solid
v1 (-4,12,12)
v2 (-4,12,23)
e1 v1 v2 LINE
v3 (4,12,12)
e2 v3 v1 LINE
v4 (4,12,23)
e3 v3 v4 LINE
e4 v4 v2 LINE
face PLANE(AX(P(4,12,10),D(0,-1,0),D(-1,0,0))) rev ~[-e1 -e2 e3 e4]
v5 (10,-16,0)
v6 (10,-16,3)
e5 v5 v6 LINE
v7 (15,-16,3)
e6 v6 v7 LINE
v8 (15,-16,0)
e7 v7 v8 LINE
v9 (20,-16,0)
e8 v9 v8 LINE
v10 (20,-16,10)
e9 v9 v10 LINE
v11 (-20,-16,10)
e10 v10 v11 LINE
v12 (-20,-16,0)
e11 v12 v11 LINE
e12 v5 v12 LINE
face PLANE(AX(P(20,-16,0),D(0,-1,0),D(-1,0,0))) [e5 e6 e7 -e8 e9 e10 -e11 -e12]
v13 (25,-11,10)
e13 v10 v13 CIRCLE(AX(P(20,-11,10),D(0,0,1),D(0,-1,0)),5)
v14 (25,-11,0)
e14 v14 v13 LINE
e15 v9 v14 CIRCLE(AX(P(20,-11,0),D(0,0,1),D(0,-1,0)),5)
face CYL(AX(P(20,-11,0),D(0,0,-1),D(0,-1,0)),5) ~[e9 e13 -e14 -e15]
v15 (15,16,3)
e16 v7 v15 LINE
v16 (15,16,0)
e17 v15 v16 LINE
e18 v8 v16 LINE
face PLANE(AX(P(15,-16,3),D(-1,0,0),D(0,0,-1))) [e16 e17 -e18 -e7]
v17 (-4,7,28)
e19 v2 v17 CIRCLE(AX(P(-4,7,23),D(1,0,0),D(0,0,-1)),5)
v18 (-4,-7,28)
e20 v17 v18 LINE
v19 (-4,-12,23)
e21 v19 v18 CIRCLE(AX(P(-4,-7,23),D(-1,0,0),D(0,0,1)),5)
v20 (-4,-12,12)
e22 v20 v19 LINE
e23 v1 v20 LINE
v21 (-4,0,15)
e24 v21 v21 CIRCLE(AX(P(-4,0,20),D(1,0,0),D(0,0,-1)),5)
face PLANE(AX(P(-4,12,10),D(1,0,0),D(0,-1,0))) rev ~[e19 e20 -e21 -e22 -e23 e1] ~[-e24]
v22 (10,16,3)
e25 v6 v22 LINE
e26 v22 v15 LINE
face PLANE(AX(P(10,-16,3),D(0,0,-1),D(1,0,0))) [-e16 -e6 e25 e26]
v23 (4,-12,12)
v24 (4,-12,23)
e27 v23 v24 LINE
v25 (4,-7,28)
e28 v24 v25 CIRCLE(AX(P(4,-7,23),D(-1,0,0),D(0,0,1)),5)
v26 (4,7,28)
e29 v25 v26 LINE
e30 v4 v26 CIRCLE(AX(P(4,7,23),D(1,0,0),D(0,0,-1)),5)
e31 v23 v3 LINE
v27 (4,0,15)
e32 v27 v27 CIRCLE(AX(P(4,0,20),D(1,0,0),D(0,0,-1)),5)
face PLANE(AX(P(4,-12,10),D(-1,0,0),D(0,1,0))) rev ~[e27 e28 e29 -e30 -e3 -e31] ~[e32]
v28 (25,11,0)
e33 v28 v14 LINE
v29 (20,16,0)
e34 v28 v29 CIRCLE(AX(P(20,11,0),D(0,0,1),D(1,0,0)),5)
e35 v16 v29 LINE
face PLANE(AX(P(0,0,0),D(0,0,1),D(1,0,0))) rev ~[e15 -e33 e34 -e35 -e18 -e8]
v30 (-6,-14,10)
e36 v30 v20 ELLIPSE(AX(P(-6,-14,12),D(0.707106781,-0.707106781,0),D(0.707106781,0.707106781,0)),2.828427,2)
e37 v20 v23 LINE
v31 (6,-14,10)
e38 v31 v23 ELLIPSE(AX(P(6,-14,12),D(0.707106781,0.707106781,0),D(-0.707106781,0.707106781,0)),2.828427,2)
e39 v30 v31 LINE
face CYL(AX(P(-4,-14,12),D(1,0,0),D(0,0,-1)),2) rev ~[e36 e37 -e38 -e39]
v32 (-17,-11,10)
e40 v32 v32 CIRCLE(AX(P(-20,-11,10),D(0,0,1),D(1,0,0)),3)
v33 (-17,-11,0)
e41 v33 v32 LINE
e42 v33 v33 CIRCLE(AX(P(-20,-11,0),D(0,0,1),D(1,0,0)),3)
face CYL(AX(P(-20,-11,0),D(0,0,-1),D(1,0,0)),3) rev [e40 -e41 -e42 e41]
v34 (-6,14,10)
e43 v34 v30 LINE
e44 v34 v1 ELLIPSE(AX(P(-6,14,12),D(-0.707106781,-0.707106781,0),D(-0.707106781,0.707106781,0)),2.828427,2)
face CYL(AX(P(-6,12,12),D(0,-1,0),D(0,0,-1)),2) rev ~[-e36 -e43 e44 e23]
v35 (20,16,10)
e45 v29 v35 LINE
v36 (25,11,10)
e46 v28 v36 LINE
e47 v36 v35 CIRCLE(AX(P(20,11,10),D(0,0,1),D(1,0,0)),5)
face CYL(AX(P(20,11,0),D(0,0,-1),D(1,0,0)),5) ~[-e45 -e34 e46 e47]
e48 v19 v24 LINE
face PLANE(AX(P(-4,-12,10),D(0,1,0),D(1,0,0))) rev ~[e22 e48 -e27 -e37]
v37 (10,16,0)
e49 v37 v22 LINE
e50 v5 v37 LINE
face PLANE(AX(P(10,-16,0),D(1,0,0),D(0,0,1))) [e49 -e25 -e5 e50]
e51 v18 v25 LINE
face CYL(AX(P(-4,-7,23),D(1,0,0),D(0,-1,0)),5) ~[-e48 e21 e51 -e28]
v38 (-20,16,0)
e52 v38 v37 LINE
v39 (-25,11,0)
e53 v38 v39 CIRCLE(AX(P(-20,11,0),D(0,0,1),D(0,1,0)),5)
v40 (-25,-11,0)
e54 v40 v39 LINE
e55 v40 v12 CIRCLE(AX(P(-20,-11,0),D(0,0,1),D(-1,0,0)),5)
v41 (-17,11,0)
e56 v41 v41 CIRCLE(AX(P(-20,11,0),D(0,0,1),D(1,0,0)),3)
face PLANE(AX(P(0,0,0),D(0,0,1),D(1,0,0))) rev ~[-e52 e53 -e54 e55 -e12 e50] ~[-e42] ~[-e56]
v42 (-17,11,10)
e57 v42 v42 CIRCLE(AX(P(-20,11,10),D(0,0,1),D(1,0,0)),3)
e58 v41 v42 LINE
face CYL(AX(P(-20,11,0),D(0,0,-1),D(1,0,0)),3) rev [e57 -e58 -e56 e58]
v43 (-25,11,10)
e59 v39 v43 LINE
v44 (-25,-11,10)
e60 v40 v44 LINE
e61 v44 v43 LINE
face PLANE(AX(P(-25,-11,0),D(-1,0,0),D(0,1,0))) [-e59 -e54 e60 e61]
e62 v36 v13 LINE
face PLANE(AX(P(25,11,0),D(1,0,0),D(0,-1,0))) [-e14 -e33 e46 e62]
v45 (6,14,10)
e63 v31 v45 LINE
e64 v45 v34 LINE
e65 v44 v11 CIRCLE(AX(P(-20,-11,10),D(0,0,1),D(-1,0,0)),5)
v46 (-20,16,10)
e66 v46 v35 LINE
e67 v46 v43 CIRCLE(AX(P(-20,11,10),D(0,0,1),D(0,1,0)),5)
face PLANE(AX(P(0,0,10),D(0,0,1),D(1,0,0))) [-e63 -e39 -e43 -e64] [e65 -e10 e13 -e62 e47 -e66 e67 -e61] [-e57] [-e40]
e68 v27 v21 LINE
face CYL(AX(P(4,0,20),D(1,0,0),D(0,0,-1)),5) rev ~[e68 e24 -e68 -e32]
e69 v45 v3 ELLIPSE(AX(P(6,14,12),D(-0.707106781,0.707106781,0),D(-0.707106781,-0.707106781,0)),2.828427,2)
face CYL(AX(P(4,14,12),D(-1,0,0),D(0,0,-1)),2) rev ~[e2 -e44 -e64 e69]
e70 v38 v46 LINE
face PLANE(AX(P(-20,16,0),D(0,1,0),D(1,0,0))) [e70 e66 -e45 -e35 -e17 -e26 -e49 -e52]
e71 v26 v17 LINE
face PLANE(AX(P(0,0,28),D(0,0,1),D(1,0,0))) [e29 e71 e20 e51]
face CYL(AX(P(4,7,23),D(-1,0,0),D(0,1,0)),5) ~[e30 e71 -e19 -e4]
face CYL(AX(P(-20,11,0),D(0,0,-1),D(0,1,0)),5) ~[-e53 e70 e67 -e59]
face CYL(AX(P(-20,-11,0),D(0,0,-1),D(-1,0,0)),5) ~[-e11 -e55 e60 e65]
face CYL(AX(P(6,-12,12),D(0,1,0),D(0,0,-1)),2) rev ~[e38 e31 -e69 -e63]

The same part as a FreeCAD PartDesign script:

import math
import FreeCAD as App
import Part
import Sketcher
from FreeCAD import Vector
Q = App.Units.Quantity


def edges_at(feature, points):
    """Names of the edges that pass closest to the given points."""
    edges = feature.Shape.Edges
    near = lambda p: min(range(len(edges)), key=lambda i: edges[i].distToShape(Part.Vertex(*p))[0])
    return sorted({f"Edge{near(p) + 1}" for p in points})


def add_polygon(sketch, points):
    """Adds a closed chain of lines whose ends are joined by coincident constraints."""
    first, n = sketch.GeometryCount, len(points)
    for a, b in zip(points, points[1:] + points[:1]):
        sketch.addGeometry(Part.LineSegment(App.Vector(*a, 0), App.Vector(*b, 0)), False)
    for i in range(n):
        sketch.addConstraint(Sketcher.Constraint("Coincident", first + i, 2, first + (i + 1) % n, 1))

doc = App.newDocument("Part")
body = doc.addObject("PartDesign::Body", "Body")

# Sketch on XY plane
sketch1 = body.newObject("Sketcher::SketchObject", "Sketch")
sketch1.AttachmentSupport = (doc.getObject("XY_Plane"), [""])
sketch1.MapMode = "FlatFace"
sketch1.addGeometry([
    Part.LineSegment(Vector(20, 16, 0), Vector(-20, 16, 0)),  # 0
    Part.ArcOfCircle(Part.Circle(Vector(-20, 11, 0), Vector(0, 0, 1), 5), math.radians(90), math.radians(180)),  # 1
    Part.LineSegment(Vector(-25, 11, 0), Vector(-25, -11, 0)),  # 2
    Part.ArcOfCircle(Part.Circle(Vector(-20, -11, 0), Vector(0, 0, 1), 5), math.radians(180), math.radians(270)),  # 3
    Part.LineSegment(Vector(-20, -16, 0), Vector(20, -16, 0)),  # 4
    Part.ArcOfCircle(Part.Circle(Vector(20, -11, 0), Vector(0, 0, 1), 5), math.radians(-90), math.radians(0)),  # 5
    Part.LineSegment(Vector(25, -11, 0), Vector(25, 11, 0)),  # 6
    Part.ArcOfCircle(Part.Circle(Vector(20, 11, 0), Vector(0, 0, 1), 5), math.radians(0), math.radians(90)),  # 7
    Part.Circle(Vector(-20, -11, 0), Vector(0, 0, 1), 3),  # 8
    Part.Circle(Vector(-20, 11, 0), Vector(0, 0, 1), 3),  # 9
], False)
sketch1.addConstraint([
    Sketcher.Constraint("Tangent", 0, 2, 1, 1),
    Sketcher.Constraint("Tangent", 1, 2, 2, 1),
    Sketcher.Constraint("Tangent", 2, 2, 3, 1),
    Sketcher.Constraint("Tangent", 3, 2, 4, 1),
    Sketcher.Constraint("Tangent", 4, 2, 5, 1),
    Sketcher.Constraint("Tangent", 5, 2, 6, 1),
    Sketcher.Constraint("Tangent", 6, 2, 7, 1),
    Sketcher.Constraint("Tangent", 7, 2, 0, 1),
    Sketcher.Constraint("Horizontal", 0),
    Sketcher.Constraint("Vertical", 2),
    Sketcher.Constraint("Horizontal", 4),
    Sketcher.Constraint("Vertical", 6),
    Sketcher.Constraint("Coincident", 8, 3, 3, 3),
    Sketcher.Constraint("Coincident", 9, 3, 1, 3),
    Sketcher.Constraint("Equal", 1, 3),
    Sketcher.Constraint("Equal", 3, 5),
    Sketcher.Constraint("Equal", 5, 7),
    Sketcher.Constraint("Equal", 8, 9),
    Sketcher.Constraint("Symmetric", 1, 3, 5, 3, -1, 1),
    Sketcher.Constraint("Diameter", 8, Q("6 mm")),
    Sketcher.Constraint("Radius", 1, Q("5 mm")),
    Sketcher.Constraint("DistanceY", 4, 2, 7, 2, Q("32 mm")),
    Sketcher.Constraint("DistanceX", 0, 2, 0, 1, Q("40 mm")),
])
pad1 = body.newObject("PartDesign::Pad", "Pad")
pad1.Profile = sketch1
pad1.Length = 10

# Sketch on XY plane
sketch2 = body.newObject("Sketcher::SketchObject", "Sketch001")
sketch2.AttachmentSupport = (doc.getObject("XY_Plane"), [""])
sketch2.MapMode = "FlatFace"
sketch2.AttachmentOffset = App.Placement(Vector(0, 0, 10), App.Rotation())
add_polygon(sketch2, [(-4, 12), (-4, -12), (4, -12), (4, 12)])  # lines 0-3
sketch2.addConstraint([
    Sketcher.Constraint("Vertical", 0),
    Sketcher.Constraint("Horizontal", 1),
    Sketcher.Constraint("Vertical", 2),
    Sketcher.Constraint("Horizontal", 3),
    Sketcher.Constraint("Symmetric", 0, 2, 2, 2, -1, 1),
    Sketcher.Constraint("DistanceX", 1, 1, 1, 2, Q("8 mm")),
    Sketcher.Constraint("DistanceY", 0, 2, 0, 1, Q("24 mm")),
])
pad2 = body.newObject("PartDesign::Pad", "Pad001")
pad2.Profile = sketch2
pad2.Length = 18

# Sketch on YZ plane
sketch3 = body.newObject("Sketcher::SketchObject", "Sketch002")
sketch3.AttachmentSupport = (doc.getObject("YZ_Plane"), [""])
sketch3.MapMode = "FlatFace"
sketch3.AttachmentOffset = App.Placement(Vector(0, 0, 4), App.Rotation())
sketch3.addGeometry(Part.Circle(Vector(0, 20, 0), Vector(0, 0, 1), 5), False)
sketch3.addConstraint([
    Sketcher.Constraint("PointOnObject", 0, 3, -2),
    Sketcher.Constraint("Diameter", 0, Q("10 mm")),
    Sketcher.Constraint("DistanceY", -1, 1, 0, 3, Q("20 mm")),
])
pocket1 = body.newObject("PartDesign::Pocket", "Pocket")
pocket1.Profile = sketch3
pocket1.Type = "UpToFirst"
doc.recompute()

fillet = body.newObject("PartDesign::Fillet", "Fillet")
fillet.Base = (pocket1, edges_at(pocket1, [
    (0, 12, 10),
    (4, 0, 10),
    (0, -12, 10),
    (-4, 0, 10),
]))
fillet.Radius = 2
doc.recompute()

fillet2 = body.newObject("PartDesign::Fillet", "Fillet001")
fillet2.Base = (fillet, edges_at(fillet, [(0, -12, 28), (0, 12, 28)]))
fillet2.Radius = 5

# Sketch on XZ plane
sketch4 = body.newObject("Sketcher::SketchObject", "Sketch003")
sketch4.AttachmentSupport = (doc.getObject("XZ_Plane"), [""])
sketch4.MapMode = "FlatFace"
sketch4.AttachmentOffset = App.Placement(Vector(0, 0, 16), App.Rotation())
add_polygon(sketch4, [(10, 0), (15, 0), (15, 3), (10, 3)])  # lines 0-3
sketch4.addConstraint([
    Sketcher.Constraint("Horizontal", 0),
    Sketcher.Constraint("Vertical", 1),
    Sketcher.Constraint("Horizontal", 2),
    Sketcher.Constraint("Vertical", 3),
    Sketcher.Constraint("PointOnObject", 0, 2, -1),
    Sketcher.Constraint("DistanceX", 0, 1, 0, 2, Q("5 mm")),
    Sketcher.Constraint("DistanceY", 1, 1, 1, 2, Q("3 mm")),
    Sketcher.Constraint("DistanceX", -1, 1, 2, 2, Q("10 mm")),
])
pocket2 = body.newObject("PartDesign::Pocket", "Pocket001")
pocket2.Profile = sketch4
pocket2.Type = "UpToFirst"

doc.recompute()
